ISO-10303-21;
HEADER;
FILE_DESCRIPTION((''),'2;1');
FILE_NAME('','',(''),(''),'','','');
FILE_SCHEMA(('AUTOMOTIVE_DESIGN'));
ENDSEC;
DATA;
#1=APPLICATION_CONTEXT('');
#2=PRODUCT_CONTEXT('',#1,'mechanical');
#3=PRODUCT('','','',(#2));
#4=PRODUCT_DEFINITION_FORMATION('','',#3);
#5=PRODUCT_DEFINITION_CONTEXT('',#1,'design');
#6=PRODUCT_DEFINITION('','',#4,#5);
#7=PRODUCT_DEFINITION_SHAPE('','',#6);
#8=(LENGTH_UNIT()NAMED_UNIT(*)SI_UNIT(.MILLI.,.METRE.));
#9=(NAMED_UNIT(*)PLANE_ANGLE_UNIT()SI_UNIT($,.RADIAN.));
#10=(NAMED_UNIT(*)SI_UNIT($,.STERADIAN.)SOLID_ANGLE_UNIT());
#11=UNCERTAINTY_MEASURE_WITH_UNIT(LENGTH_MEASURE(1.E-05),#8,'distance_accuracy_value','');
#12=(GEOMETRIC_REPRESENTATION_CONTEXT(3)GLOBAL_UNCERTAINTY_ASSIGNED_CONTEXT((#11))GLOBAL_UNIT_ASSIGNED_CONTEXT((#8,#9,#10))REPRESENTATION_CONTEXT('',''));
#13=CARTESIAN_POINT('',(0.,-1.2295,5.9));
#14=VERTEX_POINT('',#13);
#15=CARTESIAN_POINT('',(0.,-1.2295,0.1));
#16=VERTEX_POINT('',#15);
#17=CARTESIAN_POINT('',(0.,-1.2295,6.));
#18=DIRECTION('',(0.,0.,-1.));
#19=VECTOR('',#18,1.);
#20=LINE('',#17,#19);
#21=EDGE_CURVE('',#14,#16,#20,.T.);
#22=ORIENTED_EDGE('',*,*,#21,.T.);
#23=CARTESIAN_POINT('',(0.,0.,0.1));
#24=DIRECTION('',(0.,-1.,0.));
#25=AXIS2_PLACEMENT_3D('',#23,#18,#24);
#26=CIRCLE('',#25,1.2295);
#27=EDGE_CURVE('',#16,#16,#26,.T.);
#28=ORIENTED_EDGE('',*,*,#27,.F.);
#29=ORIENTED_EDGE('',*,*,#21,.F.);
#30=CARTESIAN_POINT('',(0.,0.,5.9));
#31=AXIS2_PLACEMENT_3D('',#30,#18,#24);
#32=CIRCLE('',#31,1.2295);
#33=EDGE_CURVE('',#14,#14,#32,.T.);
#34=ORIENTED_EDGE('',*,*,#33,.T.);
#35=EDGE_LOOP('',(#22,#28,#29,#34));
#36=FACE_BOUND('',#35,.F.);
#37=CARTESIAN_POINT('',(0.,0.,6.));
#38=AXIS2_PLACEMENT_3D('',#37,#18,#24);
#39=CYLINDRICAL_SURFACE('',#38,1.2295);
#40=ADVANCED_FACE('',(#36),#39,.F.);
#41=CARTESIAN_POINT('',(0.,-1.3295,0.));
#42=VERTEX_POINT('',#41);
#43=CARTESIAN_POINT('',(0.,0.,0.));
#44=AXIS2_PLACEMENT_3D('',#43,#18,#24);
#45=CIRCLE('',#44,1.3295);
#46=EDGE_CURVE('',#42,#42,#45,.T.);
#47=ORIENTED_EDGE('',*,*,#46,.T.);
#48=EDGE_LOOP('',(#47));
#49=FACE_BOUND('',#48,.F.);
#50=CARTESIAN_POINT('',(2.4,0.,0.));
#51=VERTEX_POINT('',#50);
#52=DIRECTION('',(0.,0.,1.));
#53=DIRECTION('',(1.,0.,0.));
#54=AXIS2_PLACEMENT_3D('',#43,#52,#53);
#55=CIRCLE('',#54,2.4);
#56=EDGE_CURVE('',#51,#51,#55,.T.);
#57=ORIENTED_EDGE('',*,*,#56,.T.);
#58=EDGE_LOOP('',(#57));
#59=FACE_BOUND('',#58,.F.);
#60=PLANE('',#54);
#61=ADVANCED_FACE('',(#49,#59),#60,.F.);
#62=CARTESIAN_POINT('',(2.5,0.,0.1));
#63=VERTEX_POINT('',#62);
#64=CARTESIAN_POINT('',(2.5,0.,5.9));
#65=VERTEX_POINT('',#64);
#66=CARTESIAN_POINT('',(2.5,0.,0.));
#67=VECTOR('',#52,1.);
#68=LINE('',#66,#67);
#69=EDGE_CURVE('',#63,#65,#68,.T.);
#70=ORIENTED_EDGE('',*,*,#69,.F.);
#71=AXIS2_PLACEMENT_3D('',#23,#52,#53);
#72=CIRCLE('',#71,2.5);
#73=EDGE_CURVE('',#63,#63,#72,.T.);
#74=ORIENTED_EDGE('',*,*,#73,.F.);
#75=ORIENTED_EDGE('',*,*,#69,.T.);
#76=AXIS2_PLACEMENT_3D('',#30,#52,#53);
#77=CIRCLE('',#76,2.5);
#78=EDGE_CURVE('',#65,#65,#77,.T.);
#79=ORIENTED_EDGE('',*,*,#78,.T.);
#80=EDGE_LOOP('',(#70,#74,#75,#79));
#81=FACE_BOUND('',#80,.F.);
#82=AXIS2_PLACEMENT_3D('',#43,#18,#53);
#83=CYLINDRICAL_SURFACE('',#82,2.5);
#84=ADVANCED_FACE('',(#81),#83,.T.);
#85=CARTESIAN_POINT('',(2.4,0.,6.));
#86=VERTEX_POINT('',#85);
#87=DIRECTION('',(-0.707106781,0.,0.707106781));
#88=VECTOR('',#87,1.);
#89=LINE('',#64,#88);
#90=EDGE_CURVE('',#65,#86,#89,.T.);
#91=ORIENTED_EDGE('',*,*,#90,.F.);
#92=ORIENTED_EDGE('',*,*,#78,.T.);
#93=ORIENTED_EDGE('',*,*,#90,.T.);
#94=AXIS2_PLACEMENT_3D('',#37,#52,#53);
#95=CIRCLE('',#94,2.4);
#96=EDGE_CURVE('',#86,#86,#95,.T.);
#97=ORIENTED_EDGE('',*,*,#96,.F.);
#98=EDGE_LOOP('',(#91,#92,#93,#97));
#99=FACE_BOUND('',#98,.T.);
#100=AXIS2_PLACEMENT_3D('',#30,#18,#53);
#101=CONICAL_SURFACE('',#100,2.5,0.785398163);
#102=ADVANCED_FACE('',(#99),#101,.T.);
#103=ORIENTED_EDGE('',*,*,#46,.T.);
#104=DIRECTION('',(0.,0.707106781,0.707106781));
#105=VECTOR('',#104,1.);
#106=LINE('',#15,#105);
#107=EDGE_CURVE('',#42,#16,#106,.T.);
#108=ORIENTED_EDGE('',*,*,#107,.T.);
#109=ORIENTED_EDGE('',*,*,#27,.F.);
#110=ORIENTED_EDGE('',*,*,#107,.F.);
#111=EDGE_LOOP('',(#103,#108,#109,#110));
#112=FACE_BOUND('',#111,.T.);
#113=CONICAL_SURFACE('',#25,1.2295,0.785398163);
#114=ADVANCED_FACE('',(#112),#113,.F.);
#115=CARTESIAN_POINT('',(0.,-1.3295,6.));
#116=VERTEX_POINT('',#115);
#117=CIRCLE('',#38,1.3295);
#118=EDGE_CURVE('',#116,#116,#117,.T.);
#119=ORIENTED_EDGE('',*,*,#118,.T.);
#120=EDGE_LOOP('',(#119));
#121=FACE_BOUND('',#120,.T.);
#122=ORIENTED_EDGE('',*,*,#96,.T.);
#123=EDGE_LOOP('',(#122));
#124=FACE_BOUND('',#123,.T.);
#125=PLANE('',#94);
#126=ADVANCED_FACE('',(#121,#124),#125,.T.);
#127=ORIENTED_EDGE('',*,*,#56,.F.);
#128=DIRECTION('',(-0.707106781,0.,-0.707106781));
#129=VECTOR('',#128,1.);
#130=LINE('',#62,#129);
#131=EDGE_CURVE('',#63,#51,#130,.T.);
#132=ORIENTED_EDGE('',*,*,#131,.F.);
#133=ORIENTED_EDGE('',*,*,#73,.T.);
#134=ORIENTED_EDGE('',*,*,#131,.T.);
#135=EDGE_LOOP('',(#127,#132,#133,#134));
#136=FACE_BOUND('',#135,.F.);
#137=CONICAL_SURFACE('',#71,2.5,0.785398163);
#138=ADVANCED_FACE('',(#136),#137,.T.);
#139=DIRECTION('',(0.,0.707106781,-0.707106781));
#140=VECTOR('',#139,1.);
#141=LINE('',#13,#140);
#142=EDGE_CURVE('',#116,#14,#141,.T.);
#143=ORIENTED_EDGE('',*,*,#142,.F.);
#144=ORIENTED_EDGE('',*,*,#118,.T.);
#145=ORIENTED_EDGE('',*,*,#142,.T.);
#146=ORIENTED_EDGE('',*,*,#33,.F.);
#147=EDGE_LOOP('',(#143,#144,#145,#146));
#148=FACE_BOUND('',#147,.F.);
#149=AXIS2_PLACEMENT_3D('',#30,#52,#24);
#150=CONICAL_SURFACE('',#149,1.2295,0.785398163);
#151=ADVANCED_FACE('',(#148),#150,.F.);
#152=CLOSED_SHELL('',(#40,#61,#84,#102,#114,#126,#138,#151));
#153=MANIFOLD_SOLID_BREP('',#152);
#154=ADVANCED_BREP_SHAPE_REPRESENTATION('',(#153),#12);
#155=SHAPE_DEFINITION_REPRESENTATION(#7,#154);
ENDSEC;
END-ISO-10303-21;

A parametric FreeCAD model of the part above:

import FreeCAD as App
import Part
import Sketcher

V = App.Vector
Q = App.Units.Quantity


def edges_at(feature, points):
    """Names of the edges that pass closest to the given points."""
    edges = feature.Shape.Edges
    near = lambda p: min(range(len(edges)), key=lambda i: edges[i].distToShape(Part.Vertex(*p))[0])
    return sorted({f"Edge{near(p) + 1}" for p in points})

doc = App.newDocument("Part")
body = doc.addObject("PartDesign::Body", "Body")

# Sketch on XY plane
sketch1 = body.newObject("Sketcher::SketchObject", "Sketch")
sketch1.AttachmentSupport = (doc.getObject("XY_Plane"), [""])
sketch1.MapMode = "FlatFace"
sketch1.addGeometry(Part.Circle(V(0, 0, 0), V(0, 0, 1), 2.5), False)
sketch1.addConstraint([
    Sketcher.Constraint("Coincident", 0, 3, -1, 1),
    Sketcher.Constraint("Diameter", 0, Q("5 mm")),
])
pad1 = body.newObject("PartDesign::Pad", "Pad")
pad1.Profile = sketch1
pad1.Length = 6

# Sketch on XY plane
sketch2 = body.newObject("Sketcher::SketchObject", "Sketch001")
sketch2.AttachmentSupport = (doc.getObject("XY_Plane"), [""])
sketch2.MapMode = "FlatFace"
sketch2.AttachmentOffset = App.Placement(V(0, 0, 6), App.Rotation())
sketch2.addGeometry(Part.Circle(V(0, 0, 0), V(0, 0, 1), 1.2), False)
sketch2.addConstraint([
    Sketcher.Constraint("Coincident", 0, 3, -1, 1),
    Sketcher.Constraint("Diameter", 0, Q("2.459 mm")),
])
doc.recompute()
hole = body.newObject("PartDesign::Hole", "Hole")
hole.Profile = sketch2
hole.ThreadType = "None"
hole.Diameter = 2.459
hole.DepthType = "ThroughAll"
doc.recompute()

chamfer = body.newObject("PartDesign::Chamfer", "Chamfer")
chamfer.Base = (hole, edges_at(hole, [
    (0, 1.23, 6),
    (-2.5, 0, 6),
    (-2.5, 0, 0),
    (0, 1.23, 0),
]))
chamfer.Size = 0.1

doc.recompute()
